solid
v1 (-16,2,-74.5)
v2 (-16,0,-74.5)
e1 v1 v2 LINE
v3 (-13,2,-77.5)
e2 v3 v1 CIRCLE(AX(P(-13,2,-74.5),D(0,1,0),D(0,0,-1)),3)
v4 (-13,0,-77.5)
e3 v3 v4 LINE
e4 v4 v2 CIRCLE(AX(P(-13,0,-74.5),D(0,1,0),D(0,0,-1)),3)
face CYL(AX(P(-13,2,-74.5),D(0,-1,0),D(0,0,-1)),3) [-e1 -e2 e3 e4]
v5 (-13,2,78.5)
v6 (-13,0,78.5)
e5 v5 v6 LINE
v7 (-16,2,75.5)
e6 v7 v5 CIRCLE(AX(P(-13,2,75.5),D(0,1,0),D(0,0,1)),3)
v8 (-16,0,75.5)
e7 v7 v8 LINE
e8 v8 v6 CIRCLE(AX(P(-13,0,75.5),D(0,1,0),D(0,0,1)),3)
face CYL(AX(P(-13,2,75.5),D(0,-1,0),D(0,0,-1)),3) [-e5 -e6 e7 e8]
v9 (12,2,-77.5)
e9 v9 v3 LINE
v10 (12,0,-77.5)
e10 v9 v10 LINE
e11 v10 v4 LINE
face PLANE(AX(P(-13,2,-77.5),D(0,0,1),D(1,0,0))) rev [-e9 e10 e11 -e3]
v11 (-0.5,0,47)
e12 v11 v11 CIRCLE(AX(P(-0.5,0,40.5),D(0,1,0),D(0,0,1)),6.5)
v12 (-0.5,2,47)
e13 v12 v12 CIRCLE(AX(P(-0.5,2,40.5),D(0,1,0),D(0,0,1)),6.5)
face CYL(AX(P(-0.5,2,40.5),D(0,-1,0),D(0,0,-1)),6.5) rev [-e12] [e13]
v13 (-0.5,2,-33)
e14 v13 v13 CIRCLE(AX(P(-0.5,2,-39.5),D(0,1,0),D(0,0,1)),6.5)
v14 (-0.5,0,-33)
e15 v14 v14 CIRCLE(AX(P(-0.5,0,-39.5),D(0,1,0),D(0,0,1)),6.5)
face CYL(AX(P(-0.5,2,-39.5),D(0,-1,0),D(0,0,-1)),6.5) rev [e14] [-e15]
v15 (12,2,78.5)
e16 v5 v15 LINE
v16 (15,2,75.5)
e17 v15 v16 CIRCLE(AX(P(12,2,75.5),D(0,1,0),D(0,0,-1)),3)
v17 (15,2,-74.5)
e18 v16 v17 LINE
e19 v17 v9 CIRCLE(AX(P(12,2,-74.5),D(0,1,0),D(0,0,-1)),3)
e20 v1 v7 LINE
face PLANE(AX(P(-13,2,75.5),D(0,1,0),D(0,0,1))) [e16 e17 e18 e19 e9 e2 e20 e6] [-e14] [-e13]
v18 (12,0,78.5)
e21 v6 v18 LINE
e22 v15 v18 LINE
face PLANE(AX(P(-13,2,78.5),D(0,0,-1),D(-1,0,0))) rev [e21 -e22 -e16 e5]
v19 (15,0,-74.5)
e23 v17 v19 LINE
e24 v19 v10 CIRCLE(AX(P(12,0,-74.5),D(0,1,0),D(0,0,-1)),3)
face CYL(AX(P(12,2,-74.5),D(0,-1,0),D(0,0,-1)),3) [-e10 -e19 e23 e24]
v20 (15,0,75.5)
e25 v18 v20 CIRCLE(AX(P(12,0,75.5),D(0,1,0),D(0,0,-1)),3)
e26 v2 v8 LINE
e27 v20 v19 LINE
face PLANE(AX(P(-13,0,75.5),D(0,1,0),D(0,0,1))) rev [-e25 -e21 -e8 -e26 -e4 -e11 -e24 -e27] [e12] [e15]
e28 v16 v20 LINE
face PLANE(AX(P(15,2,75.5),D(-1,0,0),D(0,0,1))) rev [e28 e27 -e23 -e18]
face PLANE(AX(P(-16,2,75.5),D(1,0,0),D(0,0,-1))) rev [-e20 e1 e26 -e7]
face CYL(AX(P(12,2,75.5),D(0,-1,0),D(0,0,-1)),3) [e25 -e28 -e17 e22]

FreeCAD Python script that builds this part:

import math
import FreeCAD as App
import Part
import Sketcher
Q = App.Units.Quantity

doc = App.newDocument("Part")
body = doc.addObject("PartDesign::Body", "Body")

# Sketch on XZ plane
sketch1 = body.newObject("Sketcher::SketchObject", "Sketch")
sketch1.AttachmentSupport = (doc.getObject("XZ_Plane"), [""])
sketch1.MapMode = "FlatFace"
sketch1.addGeometry([
    Part.LineSegment(App.Vector(-16, -74.5, 0), App.Vector(-16, 75.5, 0)),  # 0
    Part.ArcOfCircle(Part.Circle(App.Vector(-13, 75.5, 0), App.Vector(0, 0, 1), 3), math.radians(90), math.radians(180)),  # 1
    Part.LineSegment(App.Vector(-13, 78.5, 0), App.Vector(12, 78.5, 0)),  # 2
    Part.ArcOfCircle(Part.Circle(App.Vector(12, 75.5, 0), App.Vector(0, 0, 1), 3), math.radians(0), math.radians(90)),  # 3
    Part.LineSegment(App.Vector(15, 75.5, 0), App.Vector(15, -74.5, 0)),  # 4
    Part.ArcOfCircle(Part.Circle(App.Vector(12, -74.5, 0), App.Vector(0, 0, 1), 3), math.radians(-90), math.radians(0)),  # 5
    Part.LineSegment(App.Vector(12, -77.5, 0), App.Vector(-13, -77.5, 0)),  # 6
    Part.ArcOfCircle(Part.Circle(App.Vector(-13, -74.5, 0), App.Vector(0, 0, 1), 3), math.radians(180), math.radians(270)),  # 7
    Part.Circle(App.Vector(-0.5, 40.5, 0), App.Vector(0, 0, 1), 6.5),  # 8
    Part.Circle(App.Vector(-0.5, -39.5, 0), App.Vector(0, 0, 1), 6.5),  # 9
], False)
sketch1.addConstraint([
    Sketcher.Constraint("Tangent", 0, 2, 1, 2),
    Sketcher.Constraint("Tangent", 1, 1, 2, 1),
    Sketcher.Constraint("Tangent", 2, 2, 3, 2),
    Sketcher.Constraint("Tangent", 3, 1, 4, 1),
    Sketcher.Constraint("Tangent", 4, 2, 5, 2),
    Sketcher.Constraint("Tangent", 5, 1, 6, 1),
    Sketcher.Constraint("Tangent", 6, 2, 7, 2),
    Sketcher.Constraint("Tangent", 7, 1, 0, 1),
    Sketcher.Constraint("Vertical", 0),
    Sketcher.Constraint("Horizontal", 2),
    Sketcher.Constraint("Vertical", 4),
    Sketcher.Constraint("Horizontal", 6),
    Sketcher.Constraint("Equal", 1, 3),
    Sketcher.Constraint("Equal", 3, 5),
    Sketcher.Constraint("Equal", 5, 7),
    Sketcher.Constraint("Equal", 8, 9),
    Sketcher.Constraint("Vertical", 8, 3, 9, 3),
    Sketcher.Constraint("Diameter", 8, Q("13 mm")),
    Sketcher.Constraint("Radius", 1, Q("3 mm")),
    Sketcher.Constraint("DistanceX", 2, 1, 2, 2, Q("25 mm")),
    Sketcher.Constraint("DistanceY", 0, 1, 0, 2, Q("150 mm")),
    Sketcher.Constraint("DistanceX", 1, 3, -1, 1, Q("13 mm")),
    Sketcher.Constraint("DistanceY", 8, 3, 1, 3, Q("35 mm")),
    Sketcher.Constraint("DistanceY", 5, 3, 9, 3, Q("35 mm")),
    Sketcher.Constraint("DistanceY", -1, 1, 1, 3, Q("75.5 mm")),
    Sketcher.Constraint("DistanceX", 8, 3, -1, 1, Q("0.5 mm")),
])
pad1 = body.newObject("PartDesign::Pad", "Pad")
pad1.Profile = sketch1
pad1.Length = 2
pad1.Reversed = True

doc.recompute()
